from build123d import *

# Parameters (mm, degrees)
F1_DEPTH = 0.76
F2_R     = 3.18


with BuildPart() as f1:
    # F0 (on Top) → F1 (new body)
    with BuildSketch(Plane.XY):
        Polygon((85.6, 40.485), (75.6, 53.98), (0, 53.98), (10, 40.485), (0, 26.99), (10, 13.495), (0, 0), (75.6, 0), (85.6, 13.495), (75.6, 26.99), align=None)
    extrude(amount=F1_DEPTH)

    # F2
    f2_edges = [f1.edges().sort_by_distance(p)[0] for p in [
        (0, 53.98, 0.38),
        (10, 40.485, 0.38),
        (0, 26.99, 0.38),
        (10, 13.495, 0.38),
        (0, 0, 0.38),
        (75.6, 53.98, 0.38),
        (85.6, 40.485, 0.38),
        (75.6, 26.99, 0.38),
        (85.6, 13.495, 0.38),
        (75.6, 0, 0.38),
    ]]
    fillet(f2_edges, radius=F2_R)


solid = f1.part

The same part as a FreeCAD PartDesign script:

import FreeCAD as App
import Part
import Sketcher

V = App.Vector


def edges_at(feature, points):
    """Names of the edges that pass closest to the given points."""
    edges = feature.Shape.Edges
    near = lambda p: min(range(len(edges)), key=lambda i: edges[i].distToShape(Part.Vertex(*p))[0])
    return sorted({f"Edge{near(p) + 1}" for p in points})


def add_polygon(sketch, points):
    """Adds a closed chain of lines whose ends are joined by coincident constraints."""
    first, n = sketch.GeometryCount, len(points)
    for a, b in zip(points, points[1:] + points[:1]):
        sketch.addGeometry(Part.LineSegment(App.Vector(*a, 0), App.Vector(*b, 0)), False)
    for i in range(n):
        sketch.addConstraint(Sketcher.Constraint("Coincident", first + i, 2, first + (i + 1) % n, 1))

doc = App.newDocument("Part")
body = doc.addObject("PartDesign::Body", "Body")

sketch1 = body.newObject("Sketcher::SketchObject", "Sketch")
sketch1.AttachmentSupport = (doc.getObject("XY_Plane"), [""])
sketch1.MapMode = "FlatFace"
add_polygon(sketch1, [(85.6, 40.485), (75.6, 53.98), (0, 53.98), (10, 40.485), (0, 26.99), (10, 13.495), (0, 0), (75.6, 0), (85.6, 13.495), (75.6, 26.99)])
sketch1.addConstraint([
    Sketcher.Constraint("Horizontal", 1),
    Sketcher.Constraint("Horizontal", 6),
    Sketcher.Constraint("Coincident", 5, 2, -1, 1),
    Sketcher.Constraint("PointOnObject", 1, 2, -2),
    Sketcher.Constraint("PointOnObject", 3, 2, -2),
    Sketcher.Constraint("Parallel", 0, 2),
    Sketcher.Constraint("Parallel", 2, 4),
    Sketcher.Constraint("Parallel", 3, 5),
    Sketcher.Constraint("Parallel", 5, 7),
    Sketcher.Constraint("Parallel", 4, 8),
    Sketcher.Constraint("Parallel", 7, 9),
    Sketcher.Constraint("Horizontal", 4, 2, 7, 2),
    Sketcher.Constraint("Horizontal", 3, 2, 8, 2),
    Sketcher.Constraint("Horizontal", 2, 2, 9, 2),
    Sketcher.Constraint("Vertical", 2, 2, 4, 2),
    Sketcher.Constraint("Equal", 2, 3),
    Sketcher.Constraint("DistanceX", 1, 2, 1, 1, 75.6),
    Sketcher.Constraint("DistanceX", -1, 1, 2, 2, 10.0),
    Sketcher.Constraint("DistanceY", -1, 1, 0, 2, 53.98),
])
pad1 = body.newObject("PartDesign::Pad", "Pad")
pad1.Profile = sketch1
pad1.Length = 0.76
doc.recompute()

fillet = body.newObject("PartDesign::Fillet", "Fillet")
fillet.Base = (pad1, edges_at(pad1, [
    (0, 53.98, 0.38),
    (10, 40.485, 0.38),
    (0, 26.99, 0.38),
    (10, 13.495, 0.38),
    (0, 0, 0.38),
    (75.6, 53.98, 0.38),
    (85.6, 40.485, 0.38),
    (75.6, 26.99, 0.38),
    (85.6, 13.495, 0.38),
    (75.6, 0, 0.38),
]))
fillet.Radius = 3.18

doc.recompute()
